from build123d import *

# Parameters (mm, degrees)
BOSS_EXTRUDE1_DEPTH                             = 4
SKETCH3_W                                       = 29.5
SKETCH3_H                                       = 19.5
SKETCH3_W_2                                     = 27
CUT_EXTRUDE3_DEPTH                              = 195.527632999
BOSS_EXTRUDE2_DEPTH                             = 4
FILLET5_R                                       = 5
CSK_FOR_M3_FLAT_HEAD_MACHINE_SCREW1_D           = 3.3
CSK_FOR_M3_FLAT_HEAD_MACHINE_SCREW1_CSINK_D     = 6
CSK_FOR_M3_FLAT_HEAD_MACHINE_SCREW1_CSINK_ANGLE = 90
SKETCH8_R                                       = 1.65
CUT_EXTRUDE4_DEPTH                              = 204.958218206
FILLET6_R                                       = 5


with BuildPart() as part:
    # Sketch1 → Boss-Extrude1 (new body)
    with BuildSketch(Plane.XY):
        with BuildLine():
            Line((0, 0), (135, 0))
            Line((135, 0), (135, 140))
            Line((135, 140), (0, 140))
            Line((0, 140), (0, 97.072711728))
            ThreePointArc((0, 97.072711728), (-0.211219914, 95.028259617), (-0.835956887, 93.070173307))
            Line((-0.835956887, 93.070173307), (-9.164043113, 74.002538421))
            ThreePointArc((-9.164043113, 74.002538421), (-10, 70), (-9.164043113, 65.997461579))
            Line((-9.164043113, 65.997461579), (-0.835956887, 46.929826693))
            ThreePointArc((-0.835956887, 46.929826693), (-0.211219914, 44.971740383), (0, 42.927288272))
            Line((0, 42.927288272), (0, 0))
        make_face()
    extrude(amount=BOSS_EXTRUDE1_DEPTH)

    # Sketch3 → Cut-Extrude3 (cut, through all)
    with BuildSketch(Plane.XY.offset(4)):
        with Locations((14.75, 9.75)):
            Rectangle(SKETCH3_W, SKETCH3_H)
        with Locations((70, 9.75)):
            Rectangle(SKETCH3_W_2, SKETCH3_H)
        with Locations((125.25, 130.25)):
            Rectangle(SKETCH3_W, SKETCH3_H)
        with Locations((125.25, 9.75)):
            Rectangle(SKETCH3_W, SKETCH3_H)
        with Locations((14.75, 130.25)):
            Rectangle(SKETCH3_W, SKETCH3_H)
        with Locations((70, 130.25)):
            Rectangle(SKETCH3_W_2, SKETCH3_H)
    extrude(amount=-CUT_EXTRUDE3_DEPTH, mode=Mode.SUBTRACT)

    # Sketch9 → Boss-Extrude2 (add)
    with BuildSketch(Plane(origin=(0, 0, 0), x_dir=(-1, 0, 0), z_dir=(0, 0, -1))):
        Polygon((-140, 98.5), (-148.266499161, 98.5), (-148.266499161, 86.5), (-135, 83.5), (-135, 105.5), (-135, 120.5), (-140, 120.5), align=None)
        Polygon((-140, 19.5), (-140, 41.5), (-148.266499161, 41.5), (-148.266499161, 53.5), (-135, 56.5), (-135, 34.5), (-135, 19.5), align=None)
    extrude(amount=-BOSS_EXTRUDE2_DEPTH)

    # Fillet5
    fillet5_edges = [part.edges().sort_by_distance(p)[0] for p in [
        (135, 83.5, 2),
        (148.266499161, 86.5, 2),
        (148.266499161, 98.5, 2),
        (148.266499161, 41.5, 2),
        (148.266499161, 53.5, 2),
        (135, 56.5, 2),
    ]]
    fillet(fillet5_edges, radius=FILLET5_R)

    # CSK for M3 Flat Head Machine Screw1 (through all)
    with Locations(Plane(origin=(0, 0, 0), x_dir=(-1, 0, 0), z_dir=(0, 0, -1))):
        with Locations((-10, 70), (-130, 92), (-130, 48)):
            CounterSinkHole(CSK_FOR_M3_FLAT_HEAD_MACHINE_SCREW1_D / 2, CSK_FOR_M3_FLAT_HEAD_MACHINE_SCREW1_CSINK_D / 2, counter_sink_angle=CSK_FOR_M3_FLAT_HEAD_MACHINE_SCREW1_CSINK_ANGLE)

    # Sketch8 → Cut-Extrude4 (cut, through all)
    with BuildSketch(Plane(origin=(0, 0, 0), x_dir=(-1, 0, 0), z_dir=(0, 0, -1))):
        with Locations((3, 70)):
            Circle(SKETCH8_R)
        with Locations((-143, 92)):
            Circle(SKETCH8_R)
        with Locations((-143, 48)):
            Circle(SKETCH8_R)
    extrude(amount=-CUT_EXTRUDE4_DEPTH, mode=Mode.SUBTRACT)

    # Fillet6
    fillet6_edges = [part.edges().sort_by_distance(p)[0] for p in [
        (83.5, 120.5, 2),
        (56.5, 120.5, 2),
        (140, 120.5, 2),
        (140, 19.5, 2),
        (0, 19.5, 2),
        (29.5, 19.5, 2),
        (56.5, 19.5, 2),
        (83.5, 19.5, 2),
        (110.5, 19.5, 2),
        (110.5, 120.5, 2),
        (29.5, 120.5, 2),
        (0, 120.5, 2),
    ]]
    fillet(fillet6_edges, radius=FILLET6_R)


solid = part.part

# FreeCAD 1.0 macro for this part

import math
import FreeCAD as App
import Part
import Sketcher

V = App.Vector
Q = App.Units.Quantity


def edges_at(feature, points):
    """Names of the edges that pass closest to the given points."""
    edges = feature.Shape.Edges
    near = lambda p: min(range(len(edges)), key=lambda i: edges[i].distToShape(Part.Vertex(*p))[0])
    return sorted({f"Edge{near(p) + 1}" for p in points})

doc = App.newDocument("Part")
body = doc.addObject("PartDesign::Body", "Body")

# Sketch on XY plane
sketch1 = body.newObject("Sketcher::SketchObject", "Sketch")
sketch1.AttachmentSupport = (doc.getObject("XY_Plane"), [""])
sketch1.MapMode = "FlatFace"
sketch1.addGeometry(Part.LineSegment(V(0, 0, 0), V(135, 0, 0)), False)
sketch1.addGeometry(Part.LineSegment(V(135, 0, 0), V(135, 140, 0)), False)
sketch1.addGeometry(Part.LineSegment(V(135, 140, 0), V(0, 140, 0)), False)
sketch1.addGeometry(Part.LineSegment(V(0, 140, 0), V(0, 97.1, 0)), False)
sketch1.addGeometry(Part.ArcOfCircle(Part.Circle(V(-10, 97.1, 0), V(0, 0, 1), 10), math.radians(-24), math.radians(0)), False)
sketch1.addGeometry(Part.LineSegment(V(-0.8, 93.1, 0), V(-9.2, 74, 0)), False)
sketch1.addGeometry(Part.ArcOfCircle(Part.Circle(V(0, 70, 0), V(0, 0, 1), 10), math.radians(156), math.radians(204)), False)
sketch1.addGeometry(Part.LineSegment(V(-9.2, 66, 0), V(-0.8, 46.9, 0)), False)
sketch1.addGeometry(Part.ArcOfCircle(Part.Circle(V(-10, 42.9, 0), V(0, 0, 1), 10), math.radians(0), math.radians(24)), False)
sketch1.addGeometry(Part.LineSegment(V(0, 42.9, 0), V(0, 0, 0)), False)
sketch1.addConstraint(Sketcher.Constraint("Coincident", 0, 2, 1, 1))
sketch1.addConstraint(Sketcher.Constraint("Coincident", 1, 2, 2, 1))
sketch1.addConstraint(Sketcher.Constraint("Coincident", 2, 2, 3, 1))
sketch1.addConstraint(Sketcher.Constraint("Tangent", 3, 2, 4, 2))
sketch1.addConstraint(Sketcher.Constraint("Tangent", 4, 1, 5, 1))
sketch1.addConstraint(Sketcher.Constraint("Tangent", 5, 2, 6, 1))
sketch1.addConstraint(Sketcher.Constraint("Tangent", 6, 2, 7, 1))
sketch1.addConstraint(Sketcher.Constraint("Tangent", 7, 2, 8, 2))
sketch1.addConstraint(Sketcher.Constraint("Tangent", 8, 1, 9, 1))
sketch1.addConstraint(Sketcher.Constraint("Coincident", 9, 2, 0, 1))
sketch1.addConstraint(Sketcher.Constraint("Horizontal", 0))
sketch1.addConstraint(Sketcher.Constraint("Vertical", 1))
sketch1.addConstraint(Sketcher.Constraint("Horizontal", 2))
sketch1.addConstraint(Sketcher.Constraint("Vertical", 3))
sketch1.addConstraint(Sketcher.Constraint("Vertical", 9))
sketch1.addConstraint(Sketcher.Constraint("Coincident", 9, 2, -1, 1))
sketch1.addConstraint(Sketcher.Constraint("Equal", 4, 6))
sketch1.addConstraint(Sketcher.Constraint("Equal", 6, 8))
sketch1.addConstraint(Sketcher.Constraint("PointOnObject", 6, 3, -2))
sketch1.addConstraint(Sketcher.Constraint("PointOnObject", 2, 2, -2))
sketch1.addConstraint(Sketcher.Constraint("Vertical", 5, 2, 6, 2))
sketch1.addConstraint(Sketcher.Constraint("Equal", 3, 9))
sketch1.addConstraint(Sketcher.Constraint("Radius", 4, Q("10 mm")))
sketch1.addConstraint(Sketcher.Constraint("DistanceX", 0, 1, 0, 2, Q("135 mm")))
sketch1.addConstraint(Sketcher.Constraint("DistanceY", 1, 1, 1, 2, Q("140 mm")))
sketch1.addConstraint(Sketcher.Constraint("DistanceY", 3, 2, 3, 1, Q("42.927288 mm")))
pad1 = body.newObject("PartDesign::Pad", "Pad")
pad1.Profile = sketch1
pad1.Length = 4

# Sketch on XY plane
sketch2 = body.newObject("Sketcher::SketchObject", "Sketch001")
sketch2.AttachmentSupport = (doc.getObject("XY_Plane"), [""])
sketch2.MapMode = "FlatFace"
sketch2.AttachmentOffset = App.Placement(V(0, 0, 4), App.Rotation())
sketch2.addGeometry(Part.LineSegment(V(0, 20, 0), V(0, 0, 0)), False)
sketch2.addGeometry(Part.LineSegment(V(0, 0, 0), V(30, 0, 0)), False)
sketch2.addGeometry(Part.LineSegment(V(30, 0, 0), V(30, 20, 0)), False)
sketch2.addGeometry(Part.LineSegment(V(30, 20, 0), V(0, 20, 0)), False)
sketch2.addGeometry(Part.LineSegment(V(56, 20, 0), V(56, 0, 0)), False)
sketch2.addGeometry(Part.LineSegment(V(56, 0, 0), V(84, 0, 0)), False)
sketch2.addGeometry(Part.LineSegment(V(84, 0, 0), V(84, 20, 0)), False)
sketch2.addGeometry(Part.LineSegment(V(84, 20, 0), V(56, 20, 0)), False)
sketch2.addGeometry(Part.LineSegment(V(110, 140, 0), V(110, 120, 0)), False)
sketch2.addGeometry(Part.LineSegment(V(110, 120, 0), V(140, 120, 0)), False)
sketch2.addGeometry(Part.LineSegment(V(140, 120, 0), V(140, 140, 0)), False)
sketch2.addGeometry(Part.LineSegment(V(140, 140, 0), V(110, 140, 0)), False)
sketch2.addGeometry(Part.LineSegment(V(110, 20, 0), V(110, 0, 0)), False)
sketch2.addGeometry(Part.LineSegment(V(110, 0, 0), V(140, 0, 0)), False)
sketch2.addGeometry(Part.LineSegment(V(140, 0, 0), V(140, 20, 0)), False)
sketch2.addGeometry(Part.LineSegment(V(140, 20, 0), V(110, 20, 0)), False)
sketch2.addGeometry(Part.LineSegment(V(0, 140, 0), V(0, 120, 0)), False)
sketch2.addGeometry(Part.LineSegment(V(0, 120, 0), V(30, 120, 0)), False)
sketch2.addGeometry(Part.LineSegment(V(30, 120, 0), V(30, 140, 0)), False)
sketch2.addGeometry(Part.LineSegment(V(30, 140, 0), V(0, 140, 0)), False)
sketch2.addGeometry(Part.LineSegment(V(56, 140, 0), V(56, 120, 0)), False)
sketch2.addGeometry(Part.LineSegment(V(56, 120, 0), V(84, 120, 0)), False)
sketch2.addGeometry(Part.LineSegment(V(84, 120, 0), V(84, 140, 0)), False)
sketch2.addGeometry(Part.LineSegment(V(84, 140, 0), V(56, 140, 0)), False)
sketch2.addConstraint(Sketcher.Constraint("Coincident", 0, 2, 1, 1))
sketch2.addConstraint(Sketcher.Constraint("Coincident", 1, 2, 2, 1))
sketch2.addConstraint(Sketcher.Constraint("Coincident", 2, 2, 3, 1))
sketch2.addConstraint(Sketcher.Constraint("Coincident", 3, 2, 0, 1))
sketch2.addConstraint(Sketcher.Constraint("Coincident", 4, 2, 5, 1))
sketch2.addConstraint(Sketcher.Constraint("Coincident", 5, 2, 6, 1))
sketch2.addConstraint(Sketcher.Constraint("Coincident", 6, 2, 7, 1))
sketch2.addConstraint(Sketcher.Constraint("Coincident", 7, 2, 4, 1))
sketch2.addConstraint(Sketcher.Constraint("Coincident", 8, 2, 9, 1))
sketch2.addConstraint(Sketcher.Constraint("Coincident", 9, 2, 10, 1))
sketch2.addConstraint(Sketcher.Constraint("Coincident", 10, 2, 11, 1))
sketch2.addConstraint(Sketcher.Constraint("Coincident", 11, 2, 8, 1))
sketch2.addConstraint(Sketcher.Constraint("Coincident", 12, 2, 13, 1))
sketch2.addConstraint(Sketcher.Constraint("Coincident", 13, 2, 14, 1))
sketch2.addConstraint(Sketcher.Constraint("Coincident", 14, 2, 15, 1))
sketch2.addConstraint(Sketcher.Constraint("Coincident", 15, 2, 12, 1))
sketch2.addConstraint(Sketcher.Constraint("Coincident", 16, 2, 17, 1))
sketch2.addConstraint(Sketcher.Constraint("Coincident", 17, 2, 18, 1))
sketch2.addConstraint(Sketcher.Constraint("Coincident", 18, 2, 19, 1))
sketch2.addConstraint(Sketcher.Constraint("Coincident", 19, 2, 16, 1))
sketch2.addConstraint(Sketcher.Constraint("Coincident", 20, 2, 21, 1))
sketch2.addConstraint(Sketcher.Constraint("Coincident", 21, 2, 22, 1))
sketch2.addConstraint(Sketcher.Constraint("Coincident", 22, 2, 23, 1))
sketch2.addConstraint(Sketcher.Constraint("Coincident", 23, 2, 20, 1))
sketch2.addConstraint(Sketcher.Constraint("Vertical", 0))
sketch2.addConstraint(Sketcher.Constraint("Horizontal", 1))
sketch2.addConstraint(Sketcher.Constraint("Vertical", 2))
sketch2.addConstraint(Sketcher.Constraint("Horizontal", 3))
sketch2.addConstraint(Sketcher.Constraint("Vertical", 4))
sketch2.addConstraint(Sketcher.Constraint("Horizontal", 5))
sketch2.addConstraint(Sketcher.Constraint("Vertical", 6))
sketch2.addConstraint(Sketcher.Constraint("Horizontal", 7))
sketch2.addConstraint(Sketcher.Constraint("Vertical", 8))
sketch2.addConstraint(Sketcher.Constraint("Horizontal", 9))
sketch2.addConstraint(Sketcher.Constraint("Vertical", 10))
sketch2.addConstraint(Sketcher.Constraint("Horizontal", 11))
sketch2.addConstraint(Sketcher.Constraint("Vertical", 12))
sketch2.addConstraint(Sketcher.Constraint("Horizontal", 13))
sketch2.addConstraint(Sketcher.Constraint("Vertical", 14))
sketch2.addConstraint(Sketcher.Constraint("Horizontal", 15))
sketch2.addConstraint(Sketcher.Constraint("Vertical", 16))
sketch2.addConstraint(Sketcher.Constraint("Horizontal", 17))
sketch2.addConstraint(Sketcher.Constraint("Vertical", 18))
sketch2.addConstraint(Sketcher.Constraint("Horizontal", 19))
sketch2.addConstraint(Sketcher.Constraint("Vertical", 20))
sketch2.addConstraint(Sketcher.Constraint("Horizontal", 21))
sketch2.addConstraint(Sketcher.Constraint("Vertical", 22))
sketch2.addConstraint(Sketcher.Constraint("Horizontal", 23))
sketch2.addConstraint(Sketcher.Constraint("Coincident", 0, 2, -1, 1))
sketch2.addConstraint(Sketcher.Constraint("PointOnObject", 4, 2, -1))
sketch2.addConstraint(Sketcher.Constraint("PointOnObject", 12, 2, -1))
sketch2.addConstraint(Sketcher.Constraint("PointOnObject", 16, 2, -2))
sketch2.addConstraint(Sketcher.Constraint("Horizontal", 3, 2, 6, 2))
sketch2.addConstraint(Sketcher.Constraint("Horizontal", 7, 2, 14, 2))
sketch2.addConstraint(Sketcher.Constraint("Horizontal", 9, 2, 16, 2))
sketch2.addConstraint(Sketcher.Constraint("Horizontal", 11, 2, 18, 2))
sketch2.addConstraint(Sketcher.Constraint("Horizontal", 17, 2, 20, 2))
sketch2.addConstraint(Sketcher.Constraint("Horizontal", 19, 2, 22, 2))
sketch2.addConstraint(Sketcher.Constraint("Vertical", 11, 2, 12, 2))
sketch2.addConstraint(Sketcher.Constraint("Vertical", 10, 2, 13, 2))
sketch2.addConstraint(Sketcher.Constraint("Vertical", 2, 2, 17, 2))
sketch2.addConstraint(Sketcher.Constraint("Vertical", 7, 2, 20, 2))
sketch2.addConstraint(Sketcher.Constraint("Vertical", 6, 2, 21, 2))
sketch2.addConstraint(Sketcher.Constraint("Equal", 3, 9))
sketch2.addConstraint(Sketcher.Constraint("Equal", 6, 8))
sketch2.addConstraint(Sketcher.Constraint("DistanceX", 5, 1, 5, 2, Q("27 mm")))
sketch2.addConstraint(Sketcher.Constraint("DistanceX", 1, 1, 1, 2, Q("29.5 mm")))
sketch2.addConstraint(Sketcher.Constraint("DistanceY", 0, 2, 0, 1, Q("19.5 mm")))
sketch2.addConstraint(Sketcher.Constraint("DistanceX", -1, 1, 9, 2, Q("140 mm")))
sketch2.addConstraint(Sketcher.Constraint("DistanceY", -1, 1, 10, 2, Q("140 mm")))
sketch2.addConstraint(Sketcher.Constraint("DistanceX", 1, 2, 4, 2, Q("27 mm")))
pocket1 = body.newObject("PartDesign::Pocket", "Pocket")
pocket1.Profile = sketch2
pocket1.Type = "ThroughAll"

# Sketch on XY plane
sketch3 = body.newObject("Sketcher::SketchObject", "Sketch002")
sketch3.AttachmentSupport = (doc.getObject("XY_Plane"), [""])
sketch3.MapMode = "FlatFace"
sketch3.addGeometry(Part.LineSegment(V(140, 98, 0), V(148, 98, 0)), False)
sketch3.addGeometry(Part.LineSegment(V(148, 98, 0), V(148, 86, 0)), False)
sketch3.addGeometry(Part.LineSegment(V(148, 86, 0), V(135, 84, 0)), False)
sketch3.addGeometry(Part.LineSegment(V(135, 84, 0), V(135, 120, 0)), False)
sketch3.addGeometry(Part.LineSegment(V(135, 120, 0), V(140, 120, 0)), False)
sketch3.addGeometry(Part.LineSegment(V(140, 120, 0), V(140, 98, 0)), False)
sketch3.addGeometry(Part.LineSegment(V(140, 42, 0), V(140, 20, 0)), False)
sketch3.addGeometry(Part.LineSegment(V(140, 20, 0), V(135, 20, 0)), False)
sketch3.addGeometry(Part.LineSegment(V(135, 20, 0), V(135, 56, 0)), False)
sketch3.addGeometry(Part.LineSegment(V(135, 56, 0), V(148, 54, 0)), False)
sketch3.addGeometry(Part.LineSegment(V(148, 54, 0), V(148, 42, 0)), False)
sketch3.addGeometry(Part.LineSegment(V(148, 42, 0), V(140, 42, 0)), False)
sketch3.addConstraint(Sketcher.Constraint("Coincident", 0, 2, 1, 1))
sketch3.addConstraint(Sketcher.Constraint("Coincident", 1, 2, 2, 1))
sketch3.addConstraint(Sketcher.Constraint("Coincident", 2, 2, 3, 1))
sketch3.addConstraint(Sketcher.Constraint("Coincident", 3, 2, 4, 1))
sketch3.addConstraint(Sketcher.Constraint("Coincident", 4, 2, 5, 1))
sketch3.addConstraint(Sketcher.Constraint("Coincident", 5, 2, 0, 1))
sketch3.addConstraint(Sketcher.Constraint("Coincident", 6, 2, 7, 1))
sketch3.addConstraint(Sketcher.Constraint("Coincident", 7, 2, 8, 1))
sketch3.addConstraint(Sketcher.Constraint("Coincident", 8, 2, 9, 1))
sketch3.addConstraint(Sketcher.Constraint("Coincident", 9, 2, 10, 1))
sketch3.addConstraint(Sketcher.Constraint("Coincident", 10, 2, 11, 1))
sketch3.addConstraint(Sketcher.Constraint("Coincident", 11, 2, 6, 1))
sketch3.addConstraint(Sketcher.Constraint("Horizontal", 0))
sketch3.addConstraint(Sketcher.Constraint("Vertical", 1))
sketch3.addConstraint(Sketcher.Constraint("Vertical", 3))
sketch3.addConstraint(Sketcher.Constraint("Horizontal", 4))
sketch3.addConstraint(Sketcher.Constraint("Vertical", 5))
sketch3.addConstraint(Sketcher.Constraint("Vertical", 6))
sketch3.addConstraint(Sketcher.Constraint("Horizontal", 7))
sketch3.addConstraint(Sketcher.Constraint("Vertical", 8))
sketch3.addConstraint(Sketcher.Constraint("Vertical", 10))
sketch3.addConstraint(Sketcher.Constraint("Horizontal", 11))
sketch3.addConstraint(Sketcher.Constraint("Vertical", 5, 2, 6, 2))
sketch3.addConstraint(Sketcher.Constraint("Vertical", 3, 2, 7, 2))
sketch3.addConstraint(Sketcher.Constraint("Vertical", 1, 2, 9, 2))
sketch3.addConstraint(Sketcher.Constraint("Equal", 5, 6))
sketch3.addConstraint(Sketcher.Constraint("Equal", 3, 8))
sketch3.addConstraint(Sketcher.Constraint("Equal", 1, 10))
sketch3.addConstraint(Sketcher.Constraint("DistanceX", 4, 1, 4, 2, Q("5 mm")))
sketch3.addConstraint(Sketcher.Constraint("DistanceY", 1, 2, 1, 1, Q("12 mm")))
sketch3.addConstraint(Sketcher.Constraint("DistanceY", 3, 1, 3, 2, Q("37 mm")))
sketch3.addConstraint(Sketcher.Constraint("DistanceY", 5, 2, 5, 1, Q("22 mm")))
sketch3.addConstraint(Sketcher.Constraint("DistanceX", -1, 1, 2, 2, Q("135 mm")))
sketch3.addConstraint(Sketcher.Constraint("DistanceY", 6, 2, 2, 2, Q("64 mm")))
sketch3.addConstraint(Sketcher.Constraint("DistanceY", -1, 1, 0, 2, Q("98.5 mm")))
sketch3.addConstraint(Sketcher.Constraint("DistanceX", 0, 1, 0, 2, Q("8.266499 mm")))
pad2 = body.newObject("PartDesign::Pad", "Pad001")
pad2.Profile = sketch3
pad2.Length = 4
doc.recompute()

fillet = body.newObject("PartDesign::Fillet", "Fillet")
fillet.Base = (pad2, edges_at(pad2, [
    (135, 83.5, 2),
    (148.266, 86.5, 2),
    (148.266, 98.5, 2),
    (148.266, 41.5, 2),
    (148.266, 53.5, 2),
    (135, 56.5, 2),
]))
fillet.Radius = 5

# Sketch on XY plane
sketch4 = body.newObject("Sketcher::SketchObject", "Sketch003")
sketch4.AttachmentSupport = (doc.getObject("XY_Plane"), [""])
sketch4.MapMode = "FlatFace"
sketch4.addGeometry(Part.Circle(V(10, 70, 0), V(0, 0, 1), 1.6), False)
sketch4.addGeometry(Part.Circle(V(130, 92, 0), V(0, 0, 1), 1.6), False)
sketch4.addGeometry(Part.Circle(V(130, 48, 0), V(0, 0, 1), 1.6), False)
sketch4.addConstraint(Sketcher.Constraint("Equal", 0, 1))
sketch4.addConstraint(Sketcher.Constraint("Equal", 1, 2))
sketch4.addConstraint(Sketcher.Constraint("Vertical", 1, 3, 2, 3))
sketch4.addConstraint(Sketcher.Constraint("Diameter", 0, Q("3.3 mm")))
sketch4.addConstraint(Sketcher.Constraint("DistanceX", -1, 1, 0, 3, Q("10 mm")))
sketch4.addConstraint(Sketcher.Constraint("DistanceY", -1, 1, 0, 3, Q("70 mm")))
sketch4.addConstraint(Sketcher.Constraint("DistanceX", -1, 1, 1, 3, Q("130 mm")))
sketch4.addConstraint(Sketcher.Constraint("DistanceY", -1, 1, 1, 3, Q("92 mm")))
sketch4.addConstraint(Sketcher.Constraint("DistanceY", -1, 1, 2, 3, Q("48 mm")))
doc.recompute()
hole = body.newObject("PartDesign::Hole", "Hole")
hole.Profile = sketch4
hole.ThreadType = "None"
hole.Diameter = 3.3
hole.DepthType = "ThroughAll"
hole.HoleCutType = "Countersink"
hole.HoleCutDiameter = 6
hole.HoleCutCountersinkAngle = 90
hole.Reversed = True

# Sketch on XY plane
sketch5 = body.newObject("Sketcher::SketchObject", "Sketch004")
sketch5.AttachmentSupport = (doc.getObject("XY_Plane"), [""])
sketch5.MapMode = "FlatFace"
sketch5.addGeometry(Part.Circle(V(-3, 70, 0), V(0, 0, 1), 1.6), False)
sketch5.addGeometry(Part.Circle(V(143, 92, 0), V(0, 0, 1), 1.6), False)
sketch5.addGeometry(Part.Circle(V(143, 48, 0), V(0, 0, 1), 1.6), False)
sketch5.addConstraint(Sketcher.Constraint("Equal", 0, 1))
sketch5.addConstraint(Sketcher.Constraint("Equal", 1, 2))
sketch5.addConstraint(Sketcher.Constraint("Vertical", 1, 3, 2, 3))
sketch5.addConstraint(Sketcher.Constraint("Diameter", 0, Q("3.3 mm")))
sketch5.addConstraint(Sketcher.Constraint("DistanceX", 0, 3, -1, 1, Q("3 mm")))
sketch5.addConstraint(Sketcher.Constraint("DistanceY", -1, 1, 0, 3, Q("70 mm")))
sketch5.addConstraint(Sketcher.Constraint("DistanceX", -1, 1, 1, 3, Q("143 mm")))
sketch5.addConstraint(Sketcher.Constraint("DistanceY", -1, 1, 1, 3, Q("92 mm")))
sketch5.addConstraint(Sketcher.Constraint("DistanceY", -1, 1, 2, 3, Q("48 mm")))
pocket2 = body.newObject("PartDesign::Pocket", "Pocket001")
pocket2.Profile = sketch5
pocket2.Type = "ThroughAll"
pocket2.Reversed = True
doc.recompute()

fillet2 = body.newObject("PartDesign::Fillet", "Fillet001")
fillet2.Base = (pocket2, edges_at(pocket2, [
    (83.5, 120.5, 2),
    (56.5, 120.5, 2),
    (140, 120.5, 2),
    (140, 19.5, 2),
    (0, 19.5, 2),
    (29.5, 19.5, 2),
    (56.5, 19.5, 2),
    (83.5, 19.5, 2),
    (110.5, 19.5, 2),
    (110.5, 120.5, 2),
    (29.5, 120.5, 2),
    (0, 120.5, 2),
]))
fillet2.Radius = 5

doc.recompute()
